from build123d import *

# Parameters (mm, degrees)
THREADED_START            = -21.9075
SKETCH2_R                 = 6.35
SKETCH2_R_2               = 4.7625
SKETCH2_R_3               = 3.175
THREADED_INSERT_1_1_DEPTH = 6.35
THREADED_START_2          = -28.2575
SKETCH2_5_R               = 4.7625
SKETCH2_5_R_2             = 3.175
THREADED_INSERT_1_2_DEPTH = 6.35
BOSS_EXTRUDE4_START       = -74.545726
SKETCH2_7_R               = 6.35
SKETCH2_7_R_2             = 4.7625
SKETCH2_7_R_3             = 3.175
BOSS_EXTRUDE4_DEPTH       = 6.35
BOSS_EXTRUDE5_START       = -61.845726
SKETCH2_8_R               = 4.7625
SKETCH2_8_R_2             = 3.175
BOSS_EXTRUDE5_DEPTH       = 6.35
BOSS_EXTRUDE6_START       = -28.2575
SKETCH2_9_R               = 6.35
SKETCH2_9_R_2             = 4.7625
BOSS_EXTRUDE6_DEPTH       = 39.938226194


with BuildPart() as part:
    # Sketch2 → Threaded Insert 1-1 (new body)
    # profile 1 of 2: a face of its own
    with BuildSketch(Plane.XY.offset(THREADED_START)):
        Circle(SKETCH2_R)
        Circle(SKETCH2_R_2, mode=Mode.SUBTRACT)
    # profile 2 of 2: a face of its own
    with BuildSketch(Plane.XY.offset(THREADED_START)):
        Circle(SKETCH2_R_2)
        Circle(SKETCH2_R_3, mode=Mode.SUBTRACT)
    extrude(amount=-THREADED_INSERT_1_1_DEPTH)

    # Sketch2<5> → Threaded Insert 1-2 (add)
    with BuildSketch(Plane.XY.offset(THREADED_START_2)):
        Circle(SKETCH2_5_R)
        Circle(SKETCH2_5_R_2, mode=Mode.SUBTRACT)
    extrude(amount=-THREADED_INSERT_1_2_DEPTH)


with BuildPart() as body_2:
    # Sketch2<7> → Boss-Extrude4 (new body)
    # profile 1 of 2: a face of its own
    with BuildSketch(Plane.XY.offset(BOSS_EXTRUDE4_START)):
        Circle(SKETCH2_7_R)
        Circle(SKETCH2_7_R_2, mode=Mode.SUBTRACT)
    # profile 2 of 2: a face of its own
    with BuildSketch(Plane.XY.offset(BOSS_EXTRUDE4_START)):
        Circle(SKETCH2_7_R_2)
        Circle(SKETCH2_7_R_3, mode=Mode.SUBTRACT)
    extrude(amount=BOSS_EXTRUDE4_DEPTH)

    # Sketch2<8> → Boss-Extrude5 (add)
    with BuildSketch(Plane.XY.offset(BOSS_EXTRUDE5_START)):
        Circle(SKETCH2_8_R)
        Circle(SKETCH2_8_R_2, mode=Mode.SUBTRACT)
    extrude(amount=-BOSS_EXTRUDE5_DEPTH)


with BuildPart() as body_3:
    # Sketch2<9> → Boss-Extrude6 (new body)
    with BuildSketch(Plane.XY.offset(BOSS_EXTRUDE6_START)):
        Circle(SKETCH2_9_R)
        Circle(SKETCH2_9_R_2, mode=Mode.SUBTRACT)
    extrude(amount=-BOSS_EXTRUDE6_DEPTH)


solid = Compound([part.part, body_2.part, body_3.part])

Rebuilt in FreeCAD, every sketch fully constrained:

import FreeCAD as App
import Part
import Sketcher

V = App.Vector
Q = App.Units.Quantity

doc = App.newDocument("Part")
body = doc.addObject("PartDesign::Body", "Body")

# Sketch on XY plane
sketch1 = body.newObject("Sketcher::SketchObject", "Sketch")
sketch1.AttachmentSupport = (doc.getObject("XY_Plane"), [""])
sketch1.MapMode = "FlatFace"
sketch1.AttachmentOffset = App.Placement(V(0, 0, -0.8625 * 25.4), App.Rotation())
sketch1.addGeometry(Part.Circle(V(0, 0, 0), V(0, 0, 1), 6.35), False)
sketch1.addGeometry(Part.Circle(V(0, 0, 0), V(0, 0, 1), 3.175), False)
sketch1.addConstraint(Sketcher.Constraint("Coincident", 0, 3, -1, 1))
sketch1.addConstraint(Sketcher.Constraint("Coincident", 1, 3, -1, 1))
sketch1.addConstraint(Sketcher.Constraint("Diameter", 0, Q("0.5 in")))
sketch1.addConstraint(Sketcher.Constraint("Diameter", 1, Q("0.25 in")))
pad1 = body.newObject("PartDesign::Pad", "Pad")
pad1.Profile = sketch1
pad1.Length = Q("0.25 in")
pad1.Reversed = True

# Sketch on XY plane
sketch2 = body.newObject("Sketcher::SketchObject", "Sketch001")
sketch2.AttachmentSupport = (doc.getObject("XY_Plane"), [""])
sketch2.MapMode = "FlatFace"
sketch2.AttachmentOffset = App.Placement(V(0, 0, -1.1125 * 25.4), App.Rotation())
sketch2.addGeometry(Part.Circle(V(0, 0, 0), V(0, 0, 1), 4.7625), False)
sketch2.addGeometry(Part.Circle(V(0, 0, 0), V(0, 0, 1), 3.175), False)
sketch2.addConstraint(Sketcher.Constraint("Coincident", 0, 3, -1, 1))
sketch2.addConstraint(Sketcher.Constraint("Coincident", 1, 3, -1, 1))
sketch2.addConstraint(Sketcher.Constraint("Diameter", 1, Q("0.25 in")))
sketch2.addConstraint(Sketcher.Constraint("Diameter", 0, Q("0.375 in")))
pad2 = body.newObject("PartDesign::Pad", "Pad001")
pad2.Profile = sketch2
pad2.Length = Q("0.25 in")
pad2.Reversed = True
body2 = doc.addObject("PartDesign::Body", "Body001")

# Sketch on XY plane
sketch3 = body2.newObject("Sketcher::SketchObject", "Sketch002")
sketch3.AttachmentSupport = (doc.getObject("XY_Plane001"), [""])
sketch3.MapMode = "FlatFace"
sketch3.AttachmentOffset = App.Placement(V(0, 0, -74.545726), App.Rotation())
sketch3.addGeometry(Part.Circle(V(0, 0, 0), V(0, 0, 1), 6.35), False)
sketch3.addGeometry(Part.Circle(V(0, 0, 0), V(0, 0, 1), 3.175), False)
sketch3.addConstraint(Sketcher.Constraint("Coincident", 0, 3, -1, 1))
sketch3.addConstraint(Sketcher.Constraint("Coincident", 1, 3, -1, 1))
sketch3.addConstraint(Sketcher.Constraint("Diameter", 0, Q("0.5 in")))
sketch3.addConstraint(Sketcher.Constraint("Diameter", 1, Q("0.25 in")))
pad3 = body2.newObject("PartDesign::Pad", "Pad002")
pad3.Profile = sketch3
pad3.Length = Q("0.25 in")

# Sketch on XY plane
sketch4 = body2.newObject("Sketcher::SketchObject", "Sketch003")
sketch4.AttachmentSupport = (doc.getObject("XY_Plane001"), [""])
sketch4.MapMode = "FlatFace"
sketch4.AttachmentOffset = App.Placement(V(0, 0, -61.845726), App.Rotation())
sketch4.addGeometry(Part.Circle(V(0, 0, 0), V(0, 0, 1), 4.7625), False)
sketch4.addGeometry(Part.Circle(V(0, 0, 0), V(0, 0, 1), 3.175), False)
sketch4.addConstraint(Sketcher.Constraint("Coincident", 0, 3, -1, 1))
sketch4.addConstraint(Sketcher.Constraint("Coincident", 1, 3, -1, 1))
sketch4.addConstraint(Sketcher.Constraint("Diameter", 1, Q("0.25 in")))
sketch4.addConstraint(Sketcher.Constraint("Diameter", 0, Q("0.375 in")))
pad4 = body2.newObject("PartDesign::Pad", "Pad003")
pad4.Profile = sketch4
pad4.Length = Q("0.25 in")
pad4.Reversed = True
body3 = doc.addObject("PartDesign::Body", "Body002")

# Sketch on XY plane
sketch5 = body3.newObject("Sketcher::SketchObject", "Sketch004")
sketch5.AttachmentSupport = (doc.getObject("XY_Plane002"), [""])
sketch5.MapMode = "FlatFace"
sketch5.AttachmentOffset = App.Placement(V(0, 0, -1.1125 * 25.4), App.Rotation())
sketch5.addGeometry(Part.Circle(V(0, 0, 0), V(0, 0, 1), 6.35), False)
sketch5.addGeometry(Part.Circle(V(0, 0, 0), V(0, 0, 1), 4.7625), False)
sketch5.addConstraint(Sketcher.Constraint("Coincident", 0, 3, -1, 1))
sketch5.addConstraint(Sketcher.Constraint("Coincident", 1, 3, -1, 1))
sketch5.addConstraint(Sketcher.Constraint("Diameter", 0, Q("0.5 in")))
sketch5.addConstraint(Sketcher.Constraint("Diameter", 1, Q("0.375 in")))
pad5 = body3.newObject("PartDesign::Pad", "Pad004")
pad5.Profile = sketch5
pad5.Length = 39.938226
pad5.Reversed = True

doc.recompute()
